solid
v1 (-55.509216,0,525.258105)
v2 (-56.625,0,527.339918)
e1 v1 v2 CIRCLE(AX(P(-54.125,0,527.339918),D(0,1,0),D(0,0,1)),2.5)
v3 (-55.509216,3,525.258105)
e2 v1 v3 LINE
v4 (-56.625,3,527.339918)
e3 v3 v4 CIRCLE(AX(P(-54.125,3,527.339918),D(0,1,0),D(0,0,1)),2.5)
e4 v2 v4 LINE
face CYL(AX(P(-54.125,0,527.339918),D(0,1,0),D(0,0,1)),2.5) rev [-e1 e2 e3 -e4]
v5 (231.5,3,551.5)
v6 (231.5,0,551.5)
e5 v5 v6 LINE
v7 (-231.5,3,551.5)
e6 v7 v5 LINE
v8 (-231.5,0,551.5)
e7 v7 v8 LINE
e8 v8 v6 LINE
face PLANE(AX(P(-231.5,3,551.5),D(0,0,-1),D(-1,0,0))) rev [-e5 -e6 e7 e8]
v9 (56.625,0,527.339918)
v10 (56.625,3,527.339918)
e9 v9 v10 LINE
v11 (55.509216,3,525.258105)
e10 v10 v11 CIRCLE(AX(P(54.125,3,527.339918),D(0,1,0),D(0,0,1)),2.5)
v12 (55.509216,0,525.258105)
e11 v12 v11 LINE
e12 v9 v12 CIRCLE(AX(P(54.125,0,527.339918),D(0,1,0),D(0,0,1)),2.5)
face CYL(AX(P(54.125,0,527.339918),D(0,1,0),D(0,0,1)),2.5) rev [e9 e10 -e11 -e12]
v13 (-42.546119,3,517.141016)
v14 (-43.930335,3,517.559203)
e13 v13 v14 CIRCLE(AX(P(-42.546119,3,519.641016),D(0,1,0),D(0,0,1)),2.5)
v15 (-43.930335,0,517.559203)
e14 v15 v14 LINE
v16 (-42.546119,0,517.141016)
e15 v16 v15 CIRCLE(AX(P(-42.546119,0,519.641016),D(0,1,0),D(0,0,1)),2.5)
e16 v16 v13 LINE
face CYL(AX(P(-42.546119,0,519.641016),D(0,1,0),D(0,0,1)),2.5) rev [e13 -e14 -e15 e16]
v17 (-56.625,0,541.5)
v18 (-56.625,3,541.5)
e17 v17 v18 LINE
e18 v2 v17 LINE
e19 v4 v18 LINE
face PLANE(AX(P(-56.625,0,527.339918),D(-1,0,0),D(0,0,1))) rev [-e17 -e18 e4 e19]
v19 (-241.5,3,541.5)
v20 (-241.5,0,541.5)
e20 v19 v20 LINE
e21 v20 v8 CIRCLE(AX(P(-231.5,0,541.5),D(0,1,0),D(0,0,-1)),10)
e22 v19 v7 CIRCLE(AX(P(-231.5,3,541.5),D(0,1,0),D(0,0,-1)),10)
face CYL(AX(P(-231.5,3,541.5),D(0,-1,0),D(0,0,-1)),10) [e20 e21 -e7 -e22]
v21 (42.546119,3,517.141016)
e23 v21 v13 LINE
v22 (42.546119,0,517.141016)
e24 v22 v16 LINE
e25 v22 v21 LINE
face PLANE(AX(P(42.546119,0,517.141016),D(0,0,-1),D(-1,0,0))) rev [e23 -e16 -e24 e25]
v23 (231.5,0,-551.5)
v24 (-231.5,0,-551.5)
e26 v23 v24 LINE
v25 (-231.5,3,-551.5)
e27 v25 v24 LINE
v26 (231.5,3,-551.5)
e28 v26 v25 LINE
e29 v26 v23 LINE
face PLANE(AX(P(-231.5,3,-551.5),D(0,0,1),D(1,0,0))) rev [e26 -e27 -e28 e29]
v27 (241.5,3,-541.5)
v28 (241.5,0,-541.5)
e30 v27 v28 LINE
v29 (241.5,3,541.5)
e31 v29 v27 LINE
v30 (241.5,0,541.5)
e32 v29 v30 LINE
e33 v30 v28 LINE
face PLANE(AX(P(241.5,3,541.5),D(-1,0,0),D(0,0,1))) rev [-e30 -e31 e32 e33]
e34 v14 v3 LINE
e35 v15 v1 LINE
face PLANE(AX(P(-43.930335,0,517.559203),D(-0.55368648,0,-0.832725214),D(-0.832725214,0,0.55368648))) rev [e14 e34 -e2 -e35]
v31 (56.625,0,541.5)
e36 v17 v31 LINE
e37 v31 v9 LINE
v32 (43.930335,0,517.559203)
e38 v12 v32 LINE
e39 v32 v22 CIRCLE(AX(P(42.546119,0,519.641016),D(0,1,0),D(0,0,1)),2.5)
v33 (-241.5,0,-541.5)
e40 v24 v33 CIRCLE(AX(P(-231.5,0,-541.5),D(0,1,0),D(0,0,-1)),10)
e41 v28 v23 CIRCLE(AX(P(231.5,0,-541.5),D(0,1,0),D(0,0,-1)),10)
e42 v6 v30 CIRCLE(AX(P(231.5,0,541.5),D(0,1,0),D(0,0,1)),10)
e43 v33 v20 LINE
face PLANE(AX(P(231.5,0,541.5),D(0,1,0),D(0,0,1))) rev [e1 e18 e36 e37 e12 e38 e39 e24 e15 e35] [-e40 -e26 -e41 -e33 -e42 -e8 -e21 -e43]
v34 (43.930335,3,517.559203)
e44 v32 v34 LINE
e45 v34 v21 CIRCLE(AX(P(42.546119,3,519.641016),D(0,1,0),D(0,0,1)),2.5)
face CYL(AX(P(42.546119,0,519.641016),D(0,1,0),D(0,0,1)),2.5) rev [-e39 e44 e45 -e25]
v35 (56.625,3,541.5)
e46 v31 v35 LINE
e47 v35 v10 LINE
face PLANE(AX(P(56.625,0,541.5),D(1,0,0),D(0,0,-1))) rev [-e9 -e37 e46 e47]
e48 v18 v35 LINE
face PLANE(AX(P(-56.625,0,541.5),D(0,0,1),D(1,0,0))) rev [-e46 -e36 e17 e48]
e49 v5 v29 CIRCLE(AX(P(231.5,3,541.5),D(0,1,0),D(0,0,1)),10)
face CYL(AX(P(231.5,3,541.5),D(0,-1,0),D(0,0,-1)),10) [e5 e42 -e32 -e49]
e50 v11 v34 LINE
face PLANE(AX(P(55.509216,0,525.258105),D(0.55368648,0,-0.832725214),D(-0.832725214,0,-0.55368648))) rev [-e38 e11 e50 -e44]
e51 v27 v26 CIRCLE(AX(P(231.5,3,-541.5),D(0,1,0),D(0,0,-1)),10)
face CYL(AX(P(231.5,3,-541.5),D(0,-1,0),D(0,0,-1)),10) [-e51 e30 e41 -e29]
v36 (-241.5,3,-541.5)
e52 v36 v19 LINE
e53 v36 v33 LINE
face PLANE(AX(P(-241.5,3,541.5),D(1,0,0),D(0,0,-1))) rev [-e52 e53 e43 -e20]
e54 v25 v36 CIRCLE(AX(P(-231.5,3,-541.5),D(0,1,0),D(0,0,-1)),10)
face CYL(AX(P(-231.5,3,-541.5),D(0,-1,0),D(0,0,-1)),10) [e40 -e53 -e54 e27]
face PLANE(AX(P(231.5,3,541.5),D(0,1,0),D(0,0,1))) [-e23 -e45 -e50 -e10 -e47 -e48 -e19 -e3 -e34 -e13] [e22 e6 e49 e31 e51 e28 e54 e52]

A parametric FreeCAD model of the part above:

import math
import FreeCAD as App
import Part
import Sketcher
from FreeCAD import Vector

doc = App.newDocument("Part")
body = doc.addObject("PartDesign::Body", "Body")

# Sketch on XZ plane
sketch1 = body.newObject("Sketcher::SketchObject", "Sketch")
sketch1.AttachmentSupport = (doc.getObject("XZ_Plane"), [""])
sketch1.MapMode = "FlatFace"
sketch1.addGeometry([
    Part.LineSegment(Vector(-231.5, 551.5, 0), Vector(231.5, 551.5, 0)),  # 0
    Part.ArcOfCircle(Part.Circle(Vector(231.5, 541.5, 0), Vector(0, 0, 1), 10), math.radians(0), math.radians(90)),  # 1
    Part.LineSegment(Vector(241.5, 541.5, 0), Vector(241.5, -541.5, 0)),  # 2
    Part.ArcOfCircle(Part.Circle(Vector(231.5, -541.5, 0), Vector(0, 0, 1), 10), math.radians(-90), math.radians(0)),  # 3
    Part.LineSegment(Vector(231.5, -551.5, 0), Vector(-231.5, -551.5, 0)),  # 4
    Part.ArcOfCircle(Part.Circle(Vector(-231.5, -541.5, 0), Vector(0, 0, 1), 10), math.radians(180), math.radians(270)),  # 5
    Part.LineSegment(Vector(-241.5, -541.5, 0), Vector(-241.5, 541.5, 0)),  # 6
    Part.ArcOfCircle(Part.Circle(Vector(-231.5, 541.5, 0), Vector(0, 0, 1), 10), math.radians(90), math.radians(180)),  # 7
], False)
sketch1.addConstraint([
    Sketcher.Constraint("Tangent", 0, 2, 1, 2),
    Sketcher.Constraint("Tangent", 1, 1, 2, 1),
    Sketcher.Constraint("Tangent", 2, 2, 3, 2),
    Sketcher.Constraint("Tangent", 3, 1, 4, 1),
    Sketcher.Constraint("Tangent", 4, 2, 5, 2),
    Sketcher.Constraint("Tangent", 5, 1, 6, 1),
    Sketcher.Constraint("Tangent", 6, 2, 7, 2),
    Sketcher.Constraint("Tangent", 7, 1, 0, 1),
    Sketcher.Constraint("Horizontal", 0),
    Sketcher.Constraint("Vertical", 2),
    Sketcher.Constraint("Horizontal", 4),
    Sketcher.Constraint("Vertical", 6),
    Sketcher.Constraint("Equal", 1, 3),
    Sketcher.Constraint("Equal", 3, 5),
    Sketcher.Constraint("Equal", 5, 7),
    Sketcher.Constraint("Symmetric", 1, 3, 5, 3, -1, 1),
    Sketcher.Constraint("Radius", 1, 10.0),
    Sketcher.Constraint("DistanceX", 0, 1, 0, 2, 463.0),
    Sketcher.Constraint("DistanceY", 2, 2, 2, 1, 1083.0),
])
pad1 = body.newObject("PartDesign::Pad", "Pad")
pad1.Profile = sketch1
pad1.Length = 3
pad1.Reversed = True

# Sketch on XZ plane
sketch2 = body.newObject("Sketcher::SketchObject", "Sketch001")
sketch2.AttachmentSupport = (doc.getObject("XZ_Plane"), [""])
sketch2.MapMode = "FlatFace"
sketch2.AttachmentOffset = App.Placement(Vector(0, 0, -3), App.Rotation())
sketch2.addGeometry([
    Part.LineSegment(Vector(-56.625, 541.5, 0), Vector(56.625, 541.5, 0)),  # 0
    Part.LineSegment(Vector(56.625, 541.5, 0), Vector(56.625, 527.339918, 0)),  # 1
    Part.ArcOfCircle(Part.Circle(Vector(54.125, 527.339918, 0), Vector(0, 0, 1), 2.5), math.radians(-56.37971), math.radians(0)),  # 2
    Part.LineSegment(Vector(55.509216, 525.258105, 0), Vector(43.930335, 517.559203, 0)),  # 3
    Part.ArcOfCircle(Part.Circle(Vector(42.546119, 519.641016, 0), Vector(0, 0, 1), 2.5), math.radians(-90), math.radians(-56.37971)),  # 4
    Part.LineSegment(Vector(42.546119, 517.141016, 0), Vector(-42.546119, 517.141016, 0)),  # 5
    Part.ArcOfCircle(Part.Circle(Vector(-42.546119, 519.641016, 0), Vector(0, 0, 1), 2.5), math.radians(-123.62029), math.radians(-90)),  # 6
    Part.LineSegment(Vector(-43.930335, 517.559203, 0), Vector(-55.509216, 525.258105, 0)),  # 7
    Part.ArcOfCircle(Part.Circle(Vector(-54.125, 527.339918, 0), Vector(0, 0, 1), 2.5), math.radians(-180), math.radians(-123.62029)),  # 8
    Part.LineSegment(Vector(-56.625, 527.339918, 0), Vector(-56.625, 541.5, 0)),  # 9
], False)
sketch2.addConstraint([
    Sketcher.Constraint("Coincident", 0, 2, 1, 1),
    Sketcher.Constraint("Tangent", 1, 2, 2, 2),
    Sketcher.Constraint("Tangent", 2, 1, 3, 1),
    Sketcher.Constraint("Tangent", 3, 2, 4, 2),
    Sketcher.Constraint("Tangent", 4, 1, 5, 1),
    Sketcher.Constraint("Tangent", 5, 2, 6, 2),
    Sketcher.Constraint("Tangent", 6, 1, 7, 1),
    Sketcher.Constraint("Tangent", 7, 2, 8, 2),
    Sketcher.Constraint("Tangent", 8, 1, 9, 1),
    Sketcher.Constraint("Coincident", 9, 2, 0, 1),
    Sketcher.Constraint("Horizontal", 0),
    Sketcher.Constraint("Vertical", 1),
    Sketcher.Constraint("Horizontal", 5),
    Sketcher.Constraint("Vertical", 9),
    Sketcher.Constraint("Equal", 2, 4),
    Sketcher.Constraint("Equal", 4, 6),
    Sketcher.Constraint("Equal", 6, 8),
    Sketcher.Constraint("Symmetric", 2, 3, 8, 3, -2),
    Sketcher.Constraint("Horizontal", 3, 2, 6, 1),
    Sketcher.Constraint("Radius", 2, 2.5),
    Sketcher.Constraint("DistanceX", 0, 1, 0, 2, 113.25),
    Sketcher.Constraint("DistanceY", -1, 1, 0, 2, 541.5),
    Sketcher.Constraint("DistanceX", 5, 2, 5, 1, 85.092238),
    Sketcher.Constraint("DistanceY", 1, 2, 1, 1, 14.160082),
    Sketcher.Constraint("DistanceY", 4, 3, 2, 1, 5.617089),
])
pocket1 = body.newObject("PartDesign::Pocket", "Pocket")
pocket1.Profile = sketch2
pocket1.Type = "ThroughAll"
pocket1.Reversed = True

doc.recompute()
